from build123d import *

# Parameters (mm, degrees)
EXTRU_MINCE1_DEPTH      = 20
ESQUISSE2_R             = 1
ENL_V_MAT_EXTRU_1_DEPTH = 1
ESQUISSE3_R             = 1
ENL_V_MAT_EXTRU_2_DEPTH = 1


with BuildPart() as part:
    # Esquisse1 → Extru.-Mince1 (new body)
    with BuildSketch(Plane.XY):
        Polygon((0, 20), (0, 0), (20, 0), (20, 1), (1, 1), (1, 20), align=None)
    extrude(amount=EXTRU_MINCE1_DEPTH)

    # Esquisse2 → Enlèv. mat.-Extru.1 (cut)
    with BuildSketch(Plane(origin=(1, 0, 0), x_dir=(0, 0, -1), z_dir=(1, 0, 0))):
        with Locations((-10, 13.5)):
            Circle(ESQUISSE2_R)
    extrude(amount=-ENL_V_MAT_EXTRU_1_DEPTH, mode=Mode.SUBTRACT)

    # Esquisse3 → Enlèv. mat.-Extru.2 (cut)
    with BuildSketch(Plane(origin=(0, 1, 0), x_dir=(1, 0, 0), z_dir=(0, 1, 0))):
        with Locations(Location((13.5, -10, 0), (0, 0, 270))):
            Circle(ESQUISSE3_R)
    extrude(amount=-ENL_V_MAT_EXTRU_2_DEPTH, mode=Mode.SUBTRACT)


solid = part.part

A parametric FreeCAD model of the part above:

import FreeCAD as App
import Part
import Sketcher

doc = App.newDocument("Part")
body = doc.addObject("PartDesign::Body", "Body")

sketch1 = body.newObject("Sketcher::SketchObject", "Sketch")
sketch1.AttachmentSupport = (doc.getObject("XY_Plane"), [""])
sketch1.MapMode = "FlatFace"
sketch1.addGeometry([
    Part.LineSegment(App.Vector(0, 20, 0), App.Vector(0, 0, 0)),
    Part.LineSegment(App.Vector(0, 0, 0), App.Vector(20, 0, 0)),
    Part.LineSegment(App.Vector(20, 0, 0), App.Vector(20, 1, 0)),
    Part.LineSegment(App.Vector(20, 1, 0), App.Vector(1, 1, 0)),
    Part.LineSegment(App.Vector(1, 1, 0), App.Vector(1, 20, 0)),
    Part.LineSegment(App.Vector(1, 20, 0), App.Vector(0, 20, 0)),
], False)
sketch1.addConstraint([
    Sketcher.Constraint("Coincident", 0, 2, 1, 1),
    Sketcher.Constraint("Coincident", 1, 2, 2, 1),
    Sketcher.Constraint("Coincident", 2, 2, 3, 1),
    Sketcher.Constraint("Coincident", 3, 2, 4, 1),
    Sketcher.Constraint("Coincident", 4, 2, 5, 1),
    Sketcher.Constraint("Coincident", 5, 2, 0, 1),
    Sketcher.Constraint("Vertical", 0),
    Sketcher.Constraint("Horizontal", 1),
    Sketcher.Constraint("Vertical", 2),
    Sketcher.Constraint("Horizontal", 3),
    Sketcher.Constraint("Vertical", 4),
    Sketcher.Constraint("Horizontal", 5),
    Sketcher.Constraint("Coincident", 0, 2, -1, 1),
    Sketcher.Constraint("Equal", 1, 0),
    Sketcher.Constraint("Equal", 5, 2),
    Sketcher.Constraint("DistanceX", 1, 1, 1, 2, 20.0),
    Sketcher.Constraint("DistanceX", 3, 2, 3, 1, 19.0),
])
pad1 = body.newObject("PartDesign::Pad", "Pad")
pad1.Profile = sketch1
pad1.Length = 20

sketch2 = body.newObject("Sketcher::SketchObject", "Sketch001")
sketch2.AttachmentSupport = (doc.getObject("YZ_Plane"), [""])
sketch2.MapMode = "FlatFace"
sketch2.AttachmentOffset = App.Placement(App.Vector(0, 0, 1), App.Rotation())
sketch2.addGeometry(Part.Circle(App.Vector(13.5, 10, 0), App.Vector(0, 0, 1), 1), False)
sketch2.addConstraint([
    Sketcher.Constraint("Diameter", 0, 2.0),
    Sketcher.Constraint("DistanceY", -1, 1, 0, 3, 10.0),
    Sketcher.Constraint("DistanceX", -1, 1, 0, 3, 13.5),
])
pocket1 = body.newObject("PartDesign::Pocket", "Pocket")
pocket1.Profile = sketch2
pocket1.Length = 1

sketch3 = body.newObject("Sketcher::SketchObject", "Sketch002")
sketch3.AttachmentSupport = (doc.getObject("XZ_Plane"), [""])
sketch3.MapMode = "FlatFace"
sketch3.AttachmentOffset = App.Placement(App.Vector(0, 0, -1), App.Rotation())
sketch3.addGeometry(Part.Circle(App.Vector(13.5, 10, 0), App.Vector(0, 0, 1), 1), False)
sketch3.addConstraint([
    Sketcher.Constraint("Diameter", 0, 2.0),
    Sketcher.Constraint("DistanceY", -1, 1, 0, 3, 10.0),
    Sketcher.Constraint("DistanceX", -1, 1, 0, 3, 13.5),
])
pocket2 = body.newObject("PartDesign::Pocket", "Pocket001")
pocket2.Profile = sketch3
pocket2.Length = 1
pocket2.Reversed = True

doc.recompute()
